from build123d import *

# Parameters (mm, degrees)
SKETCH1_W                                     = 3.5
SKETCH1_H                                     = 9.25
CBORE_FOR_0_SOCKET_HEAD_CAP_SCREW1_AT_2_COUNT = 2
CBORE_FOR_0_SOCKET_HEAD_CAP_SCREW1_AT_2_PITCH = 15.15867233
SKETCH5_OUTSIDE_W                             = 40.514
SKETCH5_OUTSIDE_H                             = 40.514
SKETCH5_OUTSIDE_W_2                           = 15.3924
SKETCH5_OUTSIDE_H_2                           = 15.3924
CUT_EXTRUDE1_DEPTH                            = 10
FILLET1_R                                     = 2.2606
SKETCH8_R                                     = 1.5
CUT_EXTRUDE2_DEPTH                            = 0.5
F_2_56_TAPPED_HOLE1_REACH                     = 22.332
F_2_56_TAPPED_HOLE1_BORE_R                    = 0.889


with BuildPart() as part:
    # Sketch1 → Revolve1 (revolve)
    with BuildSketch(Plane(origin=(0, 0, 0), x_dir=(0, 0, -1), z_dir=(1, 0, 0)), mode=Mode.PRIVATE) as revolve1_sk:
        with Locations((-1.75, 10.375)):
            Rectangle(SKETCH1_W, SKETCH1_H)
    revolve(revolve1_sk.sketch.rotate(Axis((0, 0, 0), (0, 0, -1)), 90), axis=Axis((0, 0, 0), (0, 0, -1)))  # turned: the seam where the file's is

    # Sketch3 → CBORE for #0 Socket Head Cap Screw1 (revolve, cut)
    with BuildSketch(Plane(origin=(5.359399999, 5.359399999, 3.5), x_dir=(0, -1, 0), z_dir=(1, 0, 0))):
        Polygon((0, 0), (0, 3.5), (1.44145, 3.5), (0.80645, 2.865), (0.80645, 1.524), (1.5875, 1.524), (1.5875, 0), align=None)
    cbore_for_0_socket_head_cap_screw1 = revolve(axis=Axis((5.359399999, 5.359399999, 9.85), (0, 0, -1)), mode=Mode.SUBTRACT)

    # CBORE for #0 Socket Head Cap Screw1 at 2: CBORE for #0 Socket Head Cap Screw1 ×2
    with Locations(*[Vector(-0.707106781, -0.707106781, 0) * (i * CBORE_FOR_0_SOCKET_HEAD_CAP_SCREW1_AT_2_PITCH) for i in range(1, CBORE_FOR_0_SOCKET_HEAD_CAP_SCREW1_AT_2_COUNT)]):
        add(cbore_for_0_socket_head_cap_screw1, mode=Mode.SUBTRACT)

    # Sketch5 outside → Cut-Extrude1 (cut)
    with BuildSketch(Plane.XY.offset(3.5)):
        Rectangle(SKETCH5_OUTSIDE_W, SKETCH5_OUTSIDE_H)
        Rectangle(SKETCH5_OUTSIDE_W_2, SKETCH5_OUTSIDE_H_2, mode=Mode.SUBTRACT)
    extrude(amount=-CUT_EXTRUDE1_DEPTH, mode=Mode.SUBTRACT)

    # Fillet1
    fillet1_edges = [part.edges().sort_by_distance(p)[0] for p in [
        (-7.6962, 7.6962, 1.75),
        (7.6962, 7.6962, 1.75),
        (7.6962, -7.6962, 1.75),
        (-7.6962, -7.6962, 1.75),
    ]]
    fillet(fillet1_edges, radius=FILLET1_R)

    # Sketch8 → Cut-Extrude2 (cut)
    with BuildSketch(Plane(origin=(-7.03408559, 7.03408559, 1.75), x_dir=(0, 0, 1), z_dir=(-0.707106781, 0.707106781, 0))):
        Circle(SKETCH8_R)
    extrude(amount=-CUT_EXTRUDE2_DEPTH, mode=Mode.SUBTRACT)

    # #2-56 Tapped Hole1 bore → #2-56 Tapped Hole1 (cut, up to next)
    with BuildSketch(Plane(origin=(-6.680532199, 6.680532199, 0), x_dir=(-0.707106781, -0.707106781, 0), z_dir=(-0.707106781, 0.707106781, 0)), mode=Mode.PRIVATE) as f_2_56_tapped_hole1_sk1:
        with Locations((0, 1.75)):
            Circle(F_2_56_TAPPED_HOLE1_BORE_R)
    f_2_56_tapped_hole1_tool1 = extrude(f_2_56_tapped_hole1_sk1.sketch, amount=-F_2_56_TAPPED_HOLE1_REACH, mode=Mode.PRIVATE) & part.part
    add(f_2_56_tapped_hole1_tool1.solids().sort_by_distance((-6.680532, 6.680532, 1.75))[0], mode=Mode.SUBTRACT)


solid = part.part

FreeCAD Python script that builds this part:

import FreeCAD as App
import Part
import Sketcher
from FreeCAD import Vector
Q = App.Units.Quantity


def edges_at(feature, points):
    """Names of the edges that pass closest to the given points."""
    edges = feature.Shape.Edges
    near = lambda p: min(range(len(edges)), key=lambda i: edges[i].distToShape(Part.Vertex(*p))[0])
    return sorted({f"Edge{near(p) + 1}" for p in points})


def add_polygon(sketch, points):
    """Adds a closed chain of lines whose ends are joined by coincident constraints."""
    first, n = sketch.GeometryCount, len(points)
    for a, b in zip(points, points[1:] + points[:1]):
        sketch.addGeometry(Part.LineSegment(App.Vector(*a, 0), App.Vector(*b, 0)), False)
    for i in range(n):
        sketch.addConstraint(Sketcher.Constraint("Coincident", first + i, 2, first + (i + 1) % n, 1))

doc = App.newDocument("Part")
body = doc.addObject("PartDesign::Body", "Body")

# Sketch on YZ plane
sketch1 = body.newObject("Sketcher::SketchObject", "Sketch")
sketch1.AttachmentSupport = (doc.getObject("YZ_Plane"), [""])
sketch1.MapMode = "FlatFace"
add_polygon(sketch1, [(15, 3.5), (5.75, 3.5), (5.75, 0), (15, 0)])  # lines 0-3
sketch1.addConstraint(Sketcher.Constraint("Horizontal", 0))
sketch1.addConstraint(Sketcher.Constraint("Vertical", 1))
sketch1.addConstraint(Sketcher.Constraint("Horizontal", 2))
sketch1.addConstraint(Sketcher.Constraint("Vertical", 3))
sketch1.addConstraint(Sketcher.Constraint("PointOnObject", 1, 2, -1))
sketch1.addConstraint(Sketcher.Constraint("DistanceX", 0, 2, 0, 1, Q("9.25 mm")))
sketch1.addConstraint(Sketcher.Constraint("DistanceY", 1, 2, 1, 1, Q("3.5 mm")))
sketch1.addConstraint(Sketcher.Constraint("DistanceX", -1, 1, 0, 2, Q("5.75 mm")))
revolution = body.newObject("PartDesign::Revolution", "Revolution")
revolution.Profile = sketch1
revolution.ReferenceAxis = (sketch1, ["V_Axis"])
revolution.Angle = 360

# Sketch on YZ plane
sketch2 = body.newObject("Sketcher::SketchObject", "Sketch001")
sketch2.AttachmentSupport = (doc.getObject("YZ_Plane"), [""])
sketch2.MapMode = "FlatFace"
sketch2.AttachmentOffset = App.Placement(Vector(0, 0, 0.211 * 25.4), App.Rotation())
add_polygon(sketch2, [(5.3594, 0), (5.3594, 3.5), (3.7719, 3.5), (3.7719, 1.976), (4.55295, 1.976), (4.55295, 0.635), (3.91795, 0)])  # lines 0-6
sketch2.addGeometry(Part.LineSegment(Vector(5.3594, 3.5, 0), Vector(5.3594, 0, 0)), True)  # axis
sketch2.addConstraint(Sketcher.Constraint("Vertical", 0))
sketch2.addConstraint(Sketcher.Constraint("Horizontal", 1))
sketch2.addConstraint(Sketcher.Constraint("Vertical", 2))
sketch2.addConstraint(Sketcher.Constraint("Horizontal", 3))
sketch2.addConstraint(Sketcher.Constraint("Vertical", 4))
sketch2.addConstraint(Sketcher.Constraint("Horizontal", 6))
sketch2.addConstraint(Sketcher.Constraint("Vertical", 7))
sketch2.addConstraint(Sketcher.Constraint("Coincident", 7, 1, 0, 2))
sketch2.addConstraint(Sketcher.Constraint("PointOnObject", 5, 2, -1))
sketch2.addConstraint(Sketcher.Constraint("PointOnObject", 7, 2, -1))
sketch2.addConstraint(Sketcher.Constraint("Angle", 5, Q("-135 deg")))
sketch2.addConstraint(Sketcher.Constraint("DistanceY", 2, 2, 2, 1, Q("0.06 in")))
sketch2.addConstraint(Sketcher.Constraint("DistanceX", 1, 2, 1, 1, Q("0.0625 in")))
sketch2.addConstraint(Sketcher.Constraint("DistanceX", -1, 1, 0, 2, Q("0.211 in")))
sketch2.addConstraint(Sketcher.Constraint("DistanceY", -1, 1, 4, 2, Q("0.025 in")))
sketch2.addConstraint(Sketcher.Constraint("DistanceY", 0, 1, 0, 2, Q("3.5 mm")))
sketch2.addConstraint(Sketcher.Constraint("DistanceX", 3, 1, 3, 2, Q("0.78105 mm")))
groove = body.newObject("PartDesign::Groove", "Groove")
groove.Profile = sketch2
groove.ReferenceAxis = (sketch2, ["Axis0"])
groove.Angle = 360
doc.recompute()

datumline = body.newObject("PartDesign::Line", "DatumLine")
datumline.Placement = App.Placement(Vector(0, 0, 0), App.Rotation(Vector(0, 0, 1), Vector(-0.707106781, -0.707106781, 0)))
linearpattern = body.newObject("PartDesign::LinearPattern", "LinearPattern")
linearpattern.Originals = [groove]
linearpattern.Direction = (datumline, [""])
linearpattern.Mode = "offset"
linearpattern.Offset = 15.158672
linearpattern.Occurrences = 2
body.Tip = linearpattern

# Sketch on XY plane
sketch3 = body.newObject("Sketcher::SketchObject", "Sketch002")
sketch3.AttachmentSupport = (doc.getObject("XY_Plane"), [""])
sketch3.MapMode = "FlatFace"
sketch3.AttachmentOffset = App.Placement(Vector(0, 0, 3.5), App.Rotation())
add_polygon(sketch3, [(-20.257, 20.257), (-20.257, -20.257), (20.257, -20.257), (20.257, 20.257)])  # lines 0-3
add_polygon(sketch3, [(7.6962, -7.6962), (-7.6962, -7.6962), (-7.6962, 7.6962), (7.6962, 7.6962)])  # lines 4-7
sketch3.addConstraint(Sketcher.Constraint("Vertical", 0))
sketch3.addConstraint(Sketcher.Constraint("Horizontal", 1))
sketch3.addConstraint(Sketcher.Constraint("Vertical", 2))
sketch3.addConstraint(Sketcher.Constraint("Horizontal", 3))
sketch3.addConstraint(Sketcher.Constraint("Horizontal", 4))
sketch3.addConstraint(Sketcher.Constraint("Vertical", 5))
sketch3.addConstraint(Sketcher.Constraint("Horizontal", 6))
sketch3.addConstraint(Sketcher.Constraint("Vertical", 7))
sketch3.addConstraint(Sketcher.Constraint("Symmetric", 0, 2, 2, 2, -1, 1))
sketch3.addConstraint(Sketcher.Constraint("Symmetric", 4, 2, 6, 2, -1, 1))
sketch3.addConstraint(Sketcher.Constraint("Equal", 3, 0))
sketch3.addConstraint(Sketcher.Constraint("Equal", 6, 5))
sketch3.addConstraint(Sketcher.Constraint("DistanceX", 4, 2, 4, 1, Q("0.606 in")))
sketch3.addConstraint(Sketcher.Constraint("DistanceX", 1, 1, 1, 2, Q("40.514 mm")))
pocket1 = body.newObject("PartDesign::Pocket", "Pocket")
pocket1.Profile = sketch3
pocket1.Length = 10
doc.recompute()

fillet = body.newObject("PartDesign::Fillet", "Fillet")
fillet.Base = (pocket1, edges_at(pocket1, [
    (-7.696, 7.696, 1.75),
    (7.696, 7.696, 1.75),
    (7.696, -7.696, 1.75),
    (-7.696, -7.696, 1.75),
]))
fillet.Radius = Q("0.089 in")

# Sketch on an angled plane
sketch4 = body.newObject("Sketcher::SketchObject", "Sketch003")
sketch4.Placement = App.Placement(Vector(-7.034086, 7.034086, 1.75), App.Rotation(Vector(0, 0, 1), Vector(0.707106781, 0.707106781, 0), Vector(-0.707106781, 0.707106781, 0), "ZXY"))
sketch4.addGeometry(Part.Circle(Vector(0, 0, 0), Vector(0, 0, 1), 1.5), False)
sketch4.addConstraint(Sketcher.Constraint("Coincident", 0, 3, -1, 1))
sketch4.addConstraint(Sketcher.Constraint("Diameter", 0, Q("3 mm")))
pocket2 = body.newObject("PartDesign::Pocket", "Pocket001")
pocket2.Profile = sketch4
pocket2.Length = 0.5

# Sketch on an angled plane
sketch5 = body.newObject("Sketcher::SketchObject", "Sketch004")
sketch5.Placement = App.Placement(Vector(-6.680532, 6.680532, 0), App.Rotation(Vector(-0.707106781, -0.707106781, 0), Vector(0, 0, 0.999999999), Vector(-0.707106781, 0.707106781, 0), "ZXY"))
sketch5.addGeometry(Part.Circle(Vector(0, 1.75, 0), Vector(0, 0, 1), 0.889), False)
sketch5.addConstraint(Sketcher.Constraint("PointOnObject", 0, 3, -2))
sketch5.addConstraint(Sketcher.Constraint("Diameter", 0, Q("0.07 in")))
sketch5.addConstraint(Sketcher.Constraint("DistanceY", -1, 1, 0, 3, Q("1.75 mm")))
pocket3 = body.newObject("PartDesign::Pocket", "Pocket002")
pocket3.Profile = sketch5
pocket3.Length = 3.766838

doc.recompute()
